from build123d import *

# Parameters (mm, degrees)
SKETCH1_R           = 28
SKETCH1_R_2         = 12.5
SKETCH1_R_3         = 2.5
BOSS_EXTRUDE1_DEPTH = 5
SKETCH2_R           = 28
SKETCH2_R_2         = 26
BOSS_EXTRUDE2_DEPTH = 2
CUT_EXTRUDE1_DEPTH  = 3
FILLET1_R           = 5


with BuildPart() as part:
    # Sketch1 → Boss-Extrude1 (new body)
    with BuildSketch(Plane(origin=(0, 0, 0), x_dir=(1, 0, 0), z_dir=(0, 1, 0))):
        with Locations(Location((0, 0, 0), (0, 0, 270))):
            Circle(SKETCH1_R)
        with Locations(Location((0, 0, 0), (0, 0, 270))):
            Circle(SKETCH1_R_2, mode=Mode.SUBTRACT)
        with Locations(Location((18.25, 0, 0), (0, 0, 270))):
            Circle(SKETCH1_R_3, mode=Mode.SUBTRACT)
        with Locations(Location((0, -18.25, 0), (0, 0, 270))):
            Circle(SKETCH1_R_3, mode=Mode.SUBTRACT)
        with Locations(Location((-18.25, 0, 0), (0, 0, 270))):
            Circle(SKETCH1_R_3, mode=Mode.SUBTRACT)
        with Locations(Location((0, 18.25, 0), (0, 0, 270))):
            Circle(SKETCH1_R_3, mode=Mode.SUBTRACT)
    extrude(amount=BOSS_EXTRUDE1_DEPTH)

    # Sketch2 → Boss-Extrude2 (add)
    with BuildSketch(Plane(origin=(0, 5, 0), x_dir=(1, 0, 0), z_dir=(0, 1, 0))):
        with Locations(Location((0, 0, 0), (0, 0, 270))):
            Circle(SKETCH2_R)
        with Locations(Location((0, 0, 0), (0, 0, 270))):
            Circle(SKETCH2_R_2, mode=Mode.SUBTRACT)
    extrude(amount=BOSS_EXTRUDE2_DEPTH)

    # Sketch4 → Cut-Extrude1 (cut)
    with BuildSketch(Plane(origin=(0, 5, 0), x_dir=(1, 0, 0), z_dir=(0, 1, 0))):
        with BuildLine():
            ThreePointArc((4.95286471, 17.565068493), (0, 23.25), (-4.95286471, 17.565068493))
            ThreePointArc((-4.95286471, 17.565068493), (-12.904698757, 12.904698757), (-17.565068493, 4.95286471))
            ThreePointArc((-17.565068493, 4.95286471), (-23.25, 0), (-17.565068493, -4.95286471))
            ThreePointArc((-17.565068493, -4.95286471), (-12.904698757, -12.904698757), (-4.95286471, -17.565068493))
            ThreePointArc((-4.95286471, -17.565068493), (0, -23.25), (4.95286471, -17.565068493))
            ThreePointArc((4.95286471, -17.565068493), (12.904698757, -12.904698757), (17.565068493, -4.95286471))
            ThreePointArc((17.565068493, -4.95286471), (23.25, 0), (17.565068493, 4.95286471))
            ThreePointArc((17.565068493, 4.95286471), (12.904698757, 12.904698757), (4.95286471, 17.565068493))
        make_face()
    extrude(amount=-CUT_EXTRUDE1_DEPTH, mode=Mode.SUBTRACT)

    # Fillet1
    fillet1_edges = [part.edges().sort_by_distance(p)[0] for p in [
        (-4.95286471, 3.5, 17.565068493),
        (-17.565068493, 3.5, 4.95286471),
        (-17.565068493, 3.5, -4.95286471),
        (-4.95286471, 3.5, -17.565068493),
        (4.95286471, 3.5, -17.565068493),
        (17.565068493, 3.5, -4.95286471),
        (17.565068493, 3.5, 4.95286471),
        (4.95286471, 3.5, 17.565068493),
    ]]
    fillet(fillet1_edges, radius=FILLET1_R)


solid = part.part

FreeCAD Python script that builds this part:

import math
import FreeCAD as App
import Part
import Sketcher
Q = App.Units.Quantity


def edges_at(feature, points):
    """Names of the edges that pass closest to the given points."""
    edges = feature.Shape.Edges
    near = lambda p: min(range(len(edges)), key=lambda i: edges[i].distToShape(Part.Vertex(*p))[0])
    return sorted({f"Edge{near(p) + 1}" for p in points})

doc = App.newDocument("Part")
body = doc.addObject("PartDesign::Body", "Body")

# Sketch on XZ plane
sketch1 = body.newObject("Sketcher::SketchObject", "Sketch")
sketch1.AttachmentSupport = (doc.getObject("XZ_Plane"), [""])
sketch1.MapMode = "FlatFace"
sketch1.addGeometry(Part.Circle(App.Vector(0, 0, 0), App.Vector(0, 0, 1), 28), False)
sketch1.addGeometry(Part.Circle(App.Vector(0, -18.2, 0), App.Vector(0, 0, 1), 2.5), False)
sketch1.addGeometry(Part.Circle(App.Vector(-18.2, 0, 0), App.Vector(0, 0, 1), 2.5), False)
sketch1.addGeometry(Part.Circle(App.Vector(18.2, 0, 0), App.Vector(0, 0, 1), 2.5), False)
sketch1.addGeometry(Part.Circle(App.Vector(0, 0, 0), App.Vector(0, 0, 1), 12.5), False)
sketch1.addGeometry(Part.Circle(App.Vector(0, 18.2, 0), App.Vector(0, 0, 1), 2.5), False)
sketch1.addConstraint(Sketcher.Constraint("Coincident", 0, 3, -1, 1))
sketch1.addConstraint(Sketcher.Constraint("Coincident", 4, 3, -1, 1))
sketch1.addConstraint(Sketcher.Constraint("Equal", 1, 2))
sketch1.addConstraint(Sketcher.Constraint("Equal", 2, 3))
sketch1.addConstraint(Sketcher.Constraint("Equal", 3, 5))
sketch1.addConstraint(Sketcher.Constraint("Symmetric", 2, 3, 3, 3, -1, 1))
sketch1.addConstraint(Sketcher.Constraint("Symmetric", 1, 3, 5, 3, -1, 1))
sketch1.addConstraint(Sketcher.Constraint("PointOnObject", 1, 3, -2))
sketch1.addConstraint(Sketcher.Constraint("PointOnObject", 2, 3, -1))
sketch1.addConstraint(Sketcher.Constraint("Diameter", 0, Q("56 mm")))
sketch1.addConstraint(Sketcher.Constraint("Diameter", 1, Q("5 mm")))
sketch1.addConstraint(Sketcher.Constraint("Diameter", 4, Q("25 mm")))
sketch1.addConstraint(Sketcher.Constraint("DistanceX", 2, 3, 3, 3, Q("36.5 mm")))
sketch1.addConstraint(Sketcher.Constraint("DistanceY", 1, 3, 5, 3, Q("36.5 mm")))
pad1 = body.newObject("PartDesign::Pad", "Pad")
pad1.Profile = sketch1
pad1.Length = 5
pad1.Reversed = True

# Sketch on XZ plane
sketch2 = body.newObject("Sketcher::SketchObject", "Sketch001")
sketch2.AttachmentSupport = (doc.getObject("XZ_Plane"), [""])
sketch2.MapMode = "FlatFace"
sketch2.AttachmentOffset = App.Placement(App.Vector(0, 0, -5), App.Rotation())
sketch2.addGeometry(Part.Circle(App.Vector(0, 0, 0), App.Vector(0, 0, 1), 28), False)
sketch2.addGeometry(Part.Circle(App.Vector(0, 0, 0), App.Vector(0, 0, 1), 26), False)
sketch2.addConstraint(Sketcher.Constraint("Coincident", 0, 3, -1, 1))
sketch2.addConstraint(Sketcher.Constraint("Coincident", 1, 3, -1, 1))
sketch2.addConstraint(Sketcher.Constraint("Diameter", 0, Q("56 mm")))
sketch2.addConstraint(Sketcher.Constraint("Diameter", 1, Q("52 mm")))
pad2 = body.newObject("PartDesign::Pad", "Pad001")
pad2.Profile = sketch2
pad2.Length = 2
pad2.Reversed = True

# Sketch on XZ plane
sketch3 = body.newObject("Sketcher::SketchObject", "Sketch002")
sketch3.AttachmentSupport = (doc.getObject("XZ_Plane"), [""])
sketch3.MapMode = "FlatFace"
sketch3.AttachmentOffset = App.Placement(App.Vector(0, 0, -5), App.Rotation())
sketch3.addGeometry(Part.ArcOfCircle(Part.Circle(App.Vector(0, -18, 0), App.Vector(0, 0, 1), 5), math.radians(172), math.radians(368)), False)
sketch3.addGeometry(Part.ArcOfCircle(Part.Circle(App.Vector(0, 0, 0), App.Vector(0, 0, 1), 18), math.radians(-164), math.radians(-106)), False)
sketch3.addGeometry(Part.ArcOfCircle(Part.Circle(App.Vector(-18, 0, 0), App.Vector(0, 0, 1), 5), math.radians(82), math.radians(278)), False)
sketch3.addGeometry(Part.ArcOfCircle(Part.Circle(App.Vector(0, 0, 0), App.Vector(0, 0, 1), 18), math.radians(106), math.radians(164)), False)
sketch3.addGeometry(Part.ArcOfCircle(Part.Circle(App.Vector(0, 18, 0), App.Vector(0, 0, 1), 5), math.radians(-8), math.radians(188)), False)
sketch3.addGeometry(Part.ArcOfCircle(Part.Circle(App.Vector(0, 0, 0), App.Vector(0, 0, 1), 18), math.radians(16), math.radians(74)), False)
sketch3.addGeometry(Part.ArcOfCircle(Part.Circle(App.Vector(18, 0, 0), App.Vector(0, 0, 1), 5), math.radians(-98), math.radians(98)), False)
sketch3.addGeometry(Part.ArcOfCircle(Part.Circle(App.Vector(0, 0, 0), App.Vector(0, 0, 1), 18), math.radians(-74), math.radians(-16)), False)
sketch3.addConstraint(Sketcher.Constraint("Coincident", 0, 1, 1, 2))
sketch3.addConstraint(Sketcher.Constraint("Coincident", 1, 1, 2, 2))
sketch3.addConstraint(Sketcher.Constraint("Coincident", 2, 1, 3, 2))
sketch3.addConstraint(Sketcher.Constraint("Coincident", 3, 1, 4, 2))
sketch3.addConstraint(Sketcher.Constraint("Coincident", 4, 1, 5, 2))
sketch3.addConstraint(Sketcher.Constraint("Coincident", 5, 1, 6, 2))
sketch3.addConstraint(Sketcher.Constraint("Coincident", 6, 1, 7, 2))
sketch3.addConstraint(Sketcher.Constraint("Coincident", 7, 1, 0, 2))
sketch3.addConstraint(Sketcher.Constraint("Coincident", 1, 3, -1, 1))
sketch3.addConstraint(Sketcher.Constraint("Coincident", 3, 3, -1, 1))
sketch3.addConstraint(Sketcher.Constraint("Coincident", 5, 3, -1, 1))
sketch3.addConstraint(Sketcher.Constraint("Coincident", 7, 3, -1, 1))
sketch3.addConstraint(Sketcher.Constraint("Equal", 0, 2))
sketch3.addConstraint(Sketcher.Constraint("Equal", 1, 3))
sketch3.addConstraint(Sketcher.Constraint("Equal", 2, 4))
sketch3.addConstraint(Sketcher.Constraint("Equal", 3, 5))
sketch3.addConstraint(Sketcher.Constraint("Equal", 4, 6))
sketch3.addConstraint(Sketcher.Constraint("Equal", 5, 7))
sketch3.addConstraint(Sketcher.Constraint("Symmetric", 0, 3, 4, 3, -1, 1))
sketch3.addConstraint(Sketcher.Constraint("Symmetric", 2, 3, 6, 3, -1, 1))
sketch3.addConstraint(Sketcher.Constraint("PointOnObject", 0, 3, -2))
sketch3.addConstraint(Sketcher.Constraint("PointOnObject", 2, 3, -1))
sketch3.addConstraint(Sketcher.Constraint("Radius", 0, Q("5 mm")))
sketch3.addConstraint(Sketcher.Constraint("Radius", 1, Q("18.25 mm")))
sketch3.addConstraint(Sketcher.Constraint("DistanceY", 0, 3, 4, 3, Q("36.5 mm")))
sketch3.addConstraint(Sketcher.Constraint("DistanceX", 2, 3, -1, 1, Q("18.25 mm")))
pocket1 = body.newObject("PartDesign::Pocket", "Pocket")
pocket1.Profile = sketch3
pocket1.Length = 3
pocket1.Reversed = True
doc.recompute()

fillet = body.newObject("PartDesign::Fillet", "Fillet")
fillet.Base = (pocket1, edges_at(pocket1, [
    (-4.953, 3.5, 17.565),
    (-17.565, 3.5, 4.953),
    (-17.565, 3.5, -4.953),
    (-4.953, 3.5, -17.565),
    (4.953, 3.5, -17.565),
    (17.565, 3.5, -4.953),
    (17.565, 3.5, 4.953),
    (4.953, 3.5, 17.565),
]))
fillet.Radius = 5

doc.recompute()
